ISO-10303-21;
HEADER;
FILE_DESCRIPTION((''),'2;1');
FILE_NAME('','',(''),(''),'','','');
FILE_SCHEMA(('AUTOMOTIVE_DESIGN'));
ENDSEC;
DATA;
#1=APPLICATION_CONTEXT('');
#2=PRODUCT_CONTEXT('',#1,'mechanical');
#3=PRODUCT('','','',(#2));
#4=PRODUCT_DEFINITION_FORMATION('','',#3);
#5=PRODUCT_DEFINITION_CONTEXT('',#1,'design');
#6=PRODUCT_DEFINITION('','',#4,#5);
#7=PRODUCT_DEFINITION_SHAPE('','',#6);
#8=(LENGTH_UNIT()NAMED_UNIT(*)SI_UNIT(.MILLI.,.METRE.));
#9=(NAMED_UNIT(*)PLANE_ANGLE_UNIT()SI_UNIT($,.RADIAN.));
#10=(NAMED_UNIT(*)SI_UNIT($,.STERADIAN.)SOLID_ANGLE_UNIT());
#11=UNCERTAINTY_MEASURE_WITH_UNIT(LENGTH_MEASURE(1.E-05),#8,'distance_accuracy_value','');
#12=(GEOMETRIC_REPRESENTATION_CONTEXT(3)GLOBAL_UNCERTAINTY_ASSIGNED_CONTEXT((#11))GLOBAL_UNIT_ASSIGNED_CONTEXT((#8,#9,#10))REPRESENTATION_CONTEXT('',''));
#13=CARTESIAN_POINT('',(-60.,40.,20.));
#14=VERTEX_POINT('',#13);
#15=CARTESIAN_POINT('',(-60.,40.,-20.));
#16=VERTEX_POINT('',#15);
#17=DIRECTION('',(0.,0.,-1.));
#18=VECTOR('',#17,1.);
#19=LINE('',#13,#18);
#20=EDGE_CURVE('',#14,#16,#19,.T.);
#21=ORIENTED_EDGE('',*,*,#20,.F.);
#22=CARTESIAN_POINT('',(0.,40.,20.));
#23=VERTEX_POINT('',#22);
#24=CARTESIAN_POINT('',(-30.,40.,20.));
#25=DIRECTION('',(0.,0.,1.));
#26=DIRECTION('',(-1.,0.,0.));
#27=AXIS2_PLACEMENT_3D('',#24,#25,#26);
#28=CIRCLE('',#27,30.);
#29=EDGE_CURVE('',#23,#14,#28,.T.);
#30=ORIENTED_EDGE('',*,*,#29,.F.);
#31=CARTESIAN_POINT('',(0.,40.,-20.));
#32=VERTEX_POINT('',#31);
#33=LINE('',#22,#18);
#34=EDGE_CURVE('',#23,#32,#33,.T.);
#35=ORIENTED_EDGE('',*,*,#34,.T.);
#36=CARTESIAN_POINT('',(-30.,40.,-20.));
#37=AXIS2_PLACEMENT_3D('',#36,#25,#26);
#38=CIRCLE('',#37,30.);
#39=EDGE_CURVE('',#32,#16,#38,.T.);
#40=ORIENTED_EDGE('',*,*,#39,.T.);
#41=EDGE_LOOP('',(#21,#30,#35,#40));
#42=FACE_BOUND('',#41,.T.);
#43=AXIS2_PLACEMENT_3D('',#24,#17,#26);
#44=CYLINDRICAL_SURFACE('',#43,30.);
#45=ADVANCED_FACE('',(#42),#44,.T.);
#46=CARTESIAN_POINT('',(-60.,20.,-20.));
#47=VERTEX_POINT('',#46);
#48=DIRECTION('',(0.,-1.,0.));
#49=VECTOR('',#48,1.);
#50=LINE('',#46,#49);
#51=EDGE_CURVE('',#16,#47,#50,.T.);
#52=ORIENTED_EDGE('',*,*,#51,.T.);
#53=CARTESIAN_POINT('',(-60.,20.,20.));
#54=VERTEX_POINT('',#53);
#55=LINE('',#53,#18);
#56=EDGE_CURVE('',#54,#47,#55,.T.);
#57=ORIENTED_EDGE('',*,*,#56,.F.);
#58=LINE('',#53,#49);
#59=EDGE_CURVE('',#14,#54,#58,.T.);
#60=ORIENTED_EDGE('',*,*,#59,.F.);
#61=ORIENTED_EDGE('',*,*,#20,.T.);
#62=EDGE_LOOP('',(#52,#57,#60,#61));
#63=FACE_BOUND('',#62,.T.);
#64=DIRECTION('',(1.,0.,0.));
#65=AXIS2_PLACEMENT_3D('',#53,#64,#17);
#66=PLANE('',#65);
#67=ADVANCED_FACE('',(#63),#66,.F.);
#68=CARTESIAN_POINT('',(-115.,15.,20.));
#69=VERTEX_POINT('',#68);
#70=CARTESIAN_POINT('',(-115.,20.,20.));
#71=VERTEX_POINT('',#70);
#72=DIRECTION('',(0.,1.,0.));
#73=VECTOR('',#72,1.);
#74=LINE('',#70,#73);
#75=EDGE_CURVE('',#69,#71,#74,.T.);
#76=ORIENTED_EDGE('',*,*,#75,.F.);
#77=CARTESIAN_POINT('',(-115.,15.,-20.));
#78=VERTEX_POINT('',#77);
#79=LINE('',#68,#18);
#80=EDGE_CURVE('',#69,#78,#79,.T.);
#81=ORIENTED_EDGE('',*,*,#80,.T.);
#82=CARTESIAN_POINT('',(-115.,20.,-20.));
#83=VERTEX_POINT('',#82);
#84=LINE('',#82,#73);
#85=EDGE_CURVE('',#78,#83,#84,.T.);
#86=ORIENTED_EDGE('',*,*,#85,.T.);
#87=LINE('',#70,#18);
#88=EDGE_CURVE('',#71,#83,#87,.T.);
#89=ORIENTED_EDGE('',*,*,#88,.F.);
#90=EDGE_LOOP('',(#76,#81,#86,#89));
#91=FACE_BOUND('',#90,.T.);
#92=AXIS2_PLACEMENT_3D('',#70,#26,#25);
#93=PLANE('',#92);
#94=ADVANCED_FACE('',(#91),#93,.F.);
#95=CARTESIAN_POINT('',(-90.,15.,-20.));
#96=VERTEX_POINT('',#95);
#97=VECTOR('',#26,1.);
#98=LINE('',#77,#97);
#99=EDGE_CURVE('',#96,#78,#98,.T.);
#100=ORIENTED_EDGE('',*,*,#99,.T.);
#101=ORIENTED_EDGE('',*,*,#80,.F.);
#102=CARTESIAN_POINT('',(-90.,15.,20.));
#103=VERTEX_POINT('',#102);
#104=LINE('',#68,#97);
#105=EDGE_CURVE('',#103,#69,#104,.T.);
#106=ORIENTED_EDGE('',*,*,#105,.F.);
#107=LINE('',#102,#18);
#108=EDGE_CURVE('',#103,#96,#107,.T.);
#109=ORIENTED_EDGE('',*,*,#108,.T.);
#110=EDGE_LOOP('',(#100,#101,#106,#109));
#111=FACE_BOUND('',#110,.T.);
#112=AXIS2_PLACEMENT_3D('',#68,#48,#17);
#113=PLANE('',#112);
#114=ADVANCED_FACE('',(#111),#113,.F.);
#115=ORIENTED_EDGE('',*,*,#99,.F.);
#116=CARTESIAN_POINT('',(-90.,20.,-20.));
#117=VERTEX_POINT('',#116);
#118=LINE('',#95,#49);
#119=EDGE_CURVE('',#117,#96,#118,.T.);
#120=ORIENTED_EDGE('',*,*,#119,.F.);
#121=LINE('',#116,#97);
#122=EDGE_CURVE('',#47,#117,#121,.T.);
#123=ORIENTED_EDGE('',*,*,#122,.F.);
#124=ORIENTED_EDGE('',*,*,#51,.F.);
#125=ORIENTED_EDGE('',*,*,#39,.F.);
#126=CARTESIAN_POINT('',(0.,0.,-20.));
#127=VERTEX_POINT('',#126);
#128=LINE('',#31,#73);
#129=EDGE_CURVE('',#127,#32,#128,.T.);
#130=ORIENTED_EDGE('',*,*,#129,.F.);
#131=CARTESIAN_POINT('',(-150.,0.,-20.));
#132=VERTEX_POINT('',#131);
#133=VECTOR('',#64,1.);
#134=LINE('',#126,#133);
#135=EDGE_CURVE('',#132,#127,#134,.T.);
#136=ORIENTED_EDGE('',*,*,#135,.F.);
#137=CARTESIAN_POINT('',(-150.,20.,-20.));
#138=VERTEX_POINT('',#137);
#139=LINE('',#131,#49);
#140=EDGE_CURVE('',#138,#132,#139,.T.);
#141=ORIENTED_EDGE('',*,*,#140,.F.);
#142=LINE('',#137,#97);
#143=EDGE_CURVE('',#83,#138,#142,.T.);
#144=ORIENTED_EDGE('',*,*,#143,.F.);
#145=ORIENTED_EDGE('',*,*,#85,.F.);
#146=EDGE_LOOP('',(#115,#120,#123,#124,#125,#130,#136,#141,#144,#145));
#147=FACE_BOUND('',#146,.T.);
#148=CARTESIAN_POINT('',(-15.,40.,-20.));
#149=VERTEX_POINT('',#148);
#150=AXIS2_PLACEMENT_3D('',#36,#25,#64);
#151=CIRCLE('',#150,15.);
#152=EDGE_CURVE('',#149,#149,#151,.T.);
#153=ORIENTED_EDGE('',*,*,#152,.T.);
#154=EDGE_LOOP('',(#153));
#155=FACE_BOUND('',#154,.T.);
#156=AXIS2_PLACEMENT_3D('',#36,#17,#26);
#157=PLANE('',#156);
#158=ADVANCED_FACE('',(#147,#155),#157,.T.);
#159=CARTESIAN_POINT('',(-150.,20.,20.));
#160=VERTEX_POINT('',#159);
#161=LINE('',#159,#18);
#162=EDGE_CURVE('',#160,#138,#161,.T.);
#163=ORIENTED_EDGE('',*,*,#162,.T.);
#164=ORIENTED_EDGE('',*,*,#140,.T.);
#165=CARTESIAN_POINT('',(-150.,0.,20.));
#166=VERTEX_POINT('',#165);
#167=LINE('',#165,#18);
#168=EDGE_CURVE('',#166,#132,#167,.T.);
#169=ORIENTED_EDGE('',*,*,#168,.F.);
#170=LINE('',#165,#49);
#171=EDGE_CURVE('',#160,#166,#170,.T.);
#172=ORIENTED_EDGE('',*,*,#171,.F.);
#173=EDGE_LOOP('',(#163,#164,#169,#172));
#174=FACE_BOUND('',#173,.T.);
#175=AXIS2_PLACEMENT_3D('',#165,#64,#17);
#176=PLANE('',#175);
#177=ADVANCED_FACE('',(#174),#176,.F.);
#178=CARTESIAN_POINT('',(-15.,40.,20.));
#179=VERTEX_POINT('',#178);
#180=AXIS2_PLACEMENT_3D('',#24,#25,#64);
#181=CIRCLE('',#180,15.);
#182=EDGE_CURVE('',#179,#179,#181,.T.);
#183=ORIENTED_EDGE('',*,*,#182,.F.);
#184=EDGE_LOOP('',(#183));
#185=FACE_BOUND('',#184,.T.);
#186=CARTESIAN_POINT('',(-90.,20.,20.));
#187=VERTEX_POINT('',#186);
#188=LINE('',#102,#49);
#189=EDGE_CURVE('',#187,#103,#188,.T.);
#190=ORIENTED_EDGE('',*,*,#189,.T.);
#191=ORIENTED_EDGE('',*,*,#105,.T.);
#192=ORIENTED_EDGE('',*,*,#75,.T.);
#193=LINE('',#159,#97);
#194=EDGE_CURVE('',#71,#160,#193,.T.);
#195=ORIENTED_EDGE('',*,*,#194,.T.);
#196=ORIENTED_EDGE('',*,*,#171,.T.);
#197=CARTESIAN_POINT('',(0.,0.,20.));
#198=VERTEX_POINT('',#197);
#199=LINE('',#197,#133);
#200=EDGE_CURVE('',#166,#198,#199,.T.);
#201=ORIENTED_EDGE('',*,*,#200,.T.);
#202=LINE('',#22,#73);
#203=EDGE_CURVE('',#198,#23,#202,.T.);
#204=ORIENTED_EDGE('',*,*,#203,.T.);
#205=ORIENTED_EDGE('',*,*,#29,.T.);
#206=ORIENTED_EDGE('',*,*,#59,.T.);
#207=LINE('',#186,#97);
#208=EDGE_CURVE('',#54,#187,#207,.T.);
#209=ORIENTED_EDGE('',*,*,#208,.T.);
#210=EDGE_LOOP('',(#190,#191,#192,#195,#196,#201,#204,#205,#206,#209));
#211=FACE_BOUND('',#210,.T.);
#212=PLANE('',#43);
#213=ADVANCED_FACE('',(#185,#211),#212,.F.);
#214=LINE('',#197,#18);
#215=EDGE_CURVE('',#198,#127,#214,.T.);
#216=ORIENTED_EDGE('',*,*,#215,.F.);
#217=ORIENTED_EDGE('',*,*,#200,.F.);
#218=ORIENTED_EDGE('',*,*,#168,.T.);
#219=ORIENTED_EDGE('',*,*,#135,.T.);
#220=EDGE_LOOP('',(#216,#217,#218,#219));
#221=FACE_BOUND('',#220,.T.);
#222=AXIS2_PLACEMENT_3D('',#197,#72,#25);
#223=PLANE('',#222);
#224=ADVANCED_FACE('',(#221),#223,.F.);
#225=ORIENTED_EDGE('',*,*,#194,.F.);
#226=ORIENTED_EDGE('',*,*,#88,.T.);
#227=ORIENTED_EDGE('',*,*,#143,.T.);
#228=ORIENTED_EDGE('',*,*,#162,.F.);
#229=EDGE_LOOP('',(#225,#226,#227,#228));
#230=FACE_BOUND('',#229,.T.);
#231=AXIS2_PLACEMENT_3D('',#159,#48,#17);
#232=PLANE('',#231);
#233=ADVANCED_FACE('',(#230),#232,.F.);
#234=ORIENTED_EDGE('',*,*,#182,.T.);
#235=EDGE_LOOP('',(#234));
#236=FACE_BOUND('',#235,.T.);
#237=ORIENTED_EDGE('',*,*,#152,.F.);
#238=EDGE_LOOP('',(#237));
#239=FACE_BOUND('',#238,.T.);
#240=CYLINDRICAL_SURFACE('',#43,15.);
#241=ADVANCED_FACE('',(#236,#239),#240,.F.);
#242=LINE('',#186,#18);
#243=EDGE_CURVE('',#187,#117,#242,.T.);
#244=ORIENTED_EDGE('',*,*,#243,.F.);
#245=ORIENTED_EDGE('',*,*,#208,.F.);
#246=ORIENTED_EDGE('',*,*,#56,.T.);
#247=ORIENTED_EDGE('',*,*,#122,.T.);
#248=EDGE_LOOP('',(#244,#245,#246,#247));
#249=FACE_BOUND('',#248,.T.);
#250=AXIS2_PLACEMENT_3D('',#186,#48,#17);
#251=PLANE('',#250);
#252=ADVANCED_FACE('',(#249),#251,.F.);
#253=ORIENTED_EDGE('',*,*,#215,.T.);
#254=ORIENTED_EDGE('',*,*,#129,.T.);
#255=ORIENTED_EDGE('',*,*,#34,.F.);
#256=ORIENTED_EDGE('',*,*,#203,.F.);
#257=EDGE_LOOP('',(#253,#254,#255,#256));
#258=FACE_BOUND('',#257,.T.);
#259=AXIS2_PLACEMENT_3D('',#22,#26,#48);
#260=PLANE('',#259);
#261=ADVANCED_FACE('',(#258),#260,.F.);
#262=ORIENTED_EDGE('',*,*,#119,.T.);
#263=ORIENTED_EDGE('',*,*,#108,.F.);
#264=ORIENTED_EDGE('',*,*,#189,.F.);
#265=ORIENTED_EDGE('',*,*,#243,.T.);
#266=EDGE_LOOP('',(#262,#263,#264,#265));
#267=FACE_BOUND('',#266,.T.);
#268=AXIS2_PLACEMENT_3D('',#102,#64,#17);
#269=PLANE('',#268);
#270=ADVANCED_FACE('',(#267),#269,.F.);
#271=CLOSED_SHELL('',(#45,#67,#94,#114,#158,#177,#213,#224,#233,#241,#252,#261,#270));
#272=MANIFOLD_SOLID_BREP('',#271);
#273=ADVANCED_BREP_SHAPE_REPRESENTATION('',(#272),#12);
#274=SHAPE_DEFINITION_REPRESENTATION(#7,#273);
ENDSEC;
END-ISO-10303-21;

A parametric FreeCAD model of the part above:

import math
import FreeCAD as App
import Part
import Sketcher

V = App.Vector
Q = App.Units.Quantity

doc = App.newDocument("Part")
body = doc.addObject("PartDesign::Body", "Body")

sketch1 = body.newObject("Sketcher::SketchObject", "Sketch")
sketch1.AttachmentSupport = (doc.getObject("XY_Plane"), [""])
sketch1.MapMode = "FlatFace"
sketch1.addGeometry([
    Part.LineSegment(V(-150, 0, 0), V(0, 0, 0)),
    Part.LineSegment(V(0, 0, 0), V(0, 40, 0)),
    Part.ArcOfCircle(Part.Circle(V(-30, 40, 0), V(0, 0, 1), 30), math.radians(0), math.radians(180)),
    Part.LineSegment(V(-60, 40, 0), V(-60, 20, 0)),
    Part.LineSegment(V(-60, 20, 0), V(-90, 20, 0)),
    Part.LineSegment(V(-90, 20, 0), V(-90, 15, 0)),
    Part.LineSegment(V(-90, 15, 0), V(-115, 15, 0)),
    Part.LineSegment(V(-115, 15, 0), V(-115, 20, 0)),
    Part.LineSegment(V(-115, 20, 0), V(-150, 20, 0)),
    Part.LineSegment(V(-150, 20, 0), V(-150, 0, 0)),
    Part.Circle(V(-30, 40, 0), V(0, 0, 1), 15),
], False)
sketch1.addConstraint([
    Sketcher.Constraint("Coincident", 0, 2, 1, 1),
    Sketcher.Constraint("Tangent", 1, 2, 2, 1),
    Sketcher.Constraint("Tangent", 2, 2, 3, 1),
    Sketcher.Constraint("Coincident", 3, 2, 4, 1),
    Sketcher.Constraint("Coincident", 4, 2, 5, 1),
    Sketcher.Constraint("Coincident", 5, 2, 6, 1),
    Sketcher.Constraint("Coincident", 6, 2, 7, 1),
    Sketcher.Constraint("Coincident", 7, 2, 8, 1),
    Sketcher.Constraint("Coincident", 8, 2, 9, 1),
    Sketcher.Constraint("Coincident", 9, 2, 0, 1),
    Sketcher.Constraint("Horizontal", 0),
    Sketcher.Constraint("Vertical", 1),
    Sketcher.Constraint("Vertical", 3),
    Sketcher.Constraint("Horizontal", 4),
    Sketcher.Constraint("Vertical", 5),
    Sketcher.Constraint("Horizontal", 6),
    Sketcher.Constraint("Vertical", 7),
    Sketcher.Constraint("Horizontal", 8),
    Sketcher.Constraint("Vertical", 9),
    Sketcher.Constraint("Coincident", 0, 2, -1, 1),
    Sketcher.Constraint("Coincident", 10, 3, 2, 3),
    Sketcher.Constraint("Horizontal", 4, 2, 7, 2),
    Sketcher.Constraint("Equal", 3, 9),
    Sketcher.Constraint("Diameter", 10, Q("30 mm")),
    Sketcher.Constraint("Radius", 2, Q("30 mm")),
    Sketcher.Constraint("DistanceX", 0, 1, 0, 2, Q("150 mm")),
    Sketcher.Constraint("DistanceX", 4, 2, 4, 1, Q("30 mm")),
    Sketcher.Constraint("DistanceX", 6, 2, 6, 1, Q("25 mm")),
    Sketcher.Constraint("DistanceY", 1, 1, 1, 2, Q("40 mm")),
    Sketcher.Constraint("DistanceY", 5, 2, 5, 1, Q("5 mm")),
])
pad1 = body.newObject("PartDesign::Pad", "Pad")
pad1.Profile = sketch1
pad1.Length = 40
pad1.Midplane = True

doc.recompute()
